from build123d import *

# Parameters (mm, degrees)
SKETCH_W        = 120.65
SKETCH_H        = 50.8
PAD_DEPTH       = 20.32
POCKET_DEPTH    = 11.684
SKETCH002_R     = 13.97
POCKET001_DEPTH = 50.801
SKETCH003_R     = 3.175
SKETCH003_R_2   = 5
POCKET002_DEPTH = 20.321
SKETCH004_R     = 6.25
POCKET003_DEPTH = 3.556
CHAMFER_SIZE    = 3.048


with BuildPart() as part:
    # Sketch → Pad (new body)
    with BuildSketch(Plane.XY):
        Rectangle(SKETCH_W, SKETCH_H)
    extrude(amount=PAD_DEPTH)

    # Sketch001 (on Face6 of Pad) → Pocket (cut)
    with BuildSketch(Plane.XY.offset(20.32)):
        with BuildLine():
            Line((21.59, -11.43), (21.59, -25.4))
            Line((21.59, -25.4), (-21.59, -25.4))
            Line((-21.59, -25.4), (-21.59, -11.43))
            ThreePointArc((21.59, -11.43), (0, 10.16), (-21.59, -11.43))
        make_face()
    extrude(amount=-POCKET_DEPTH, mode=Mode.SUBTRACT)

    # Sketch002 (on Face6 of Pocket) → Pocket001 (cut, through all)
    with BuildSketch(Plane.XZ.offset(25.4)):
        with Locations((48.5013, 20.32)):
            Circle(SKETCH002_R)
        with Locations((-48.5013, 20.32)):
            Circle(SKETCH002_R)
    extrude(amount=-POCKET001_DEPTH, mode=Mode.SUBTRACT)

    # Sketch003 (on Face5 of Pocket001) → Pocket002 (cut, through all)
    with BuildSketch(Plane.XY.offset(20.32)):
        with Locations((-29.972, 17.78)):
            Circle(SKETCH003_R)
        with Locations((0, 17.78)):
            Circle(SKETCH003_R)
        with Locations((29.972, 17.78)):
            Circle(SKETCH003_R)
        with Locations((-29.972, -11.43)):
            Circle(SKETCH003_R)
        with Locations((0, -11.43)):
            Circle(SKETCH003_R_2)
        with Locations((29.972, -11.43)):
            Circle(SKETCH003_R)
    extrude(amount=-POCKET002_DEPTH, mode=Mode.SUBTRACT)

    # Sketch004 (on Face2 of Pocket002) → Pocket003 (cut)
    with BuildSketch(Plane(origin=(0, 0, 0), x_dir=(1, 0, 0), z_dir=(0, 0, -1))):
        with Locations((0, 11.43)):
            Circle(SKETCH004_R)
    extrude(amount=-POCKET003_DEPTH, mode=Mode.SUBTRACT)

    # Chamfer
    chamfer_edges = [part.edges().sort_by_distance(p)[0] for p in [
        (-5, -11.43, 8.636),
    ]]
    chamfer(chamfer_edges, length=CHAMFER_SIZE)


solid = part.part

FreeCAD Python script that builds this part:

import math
import FreeCAD as App
import Part
import Sketcher
Q = App.Units.Quantity


def edges_at(feature, points):
    """Names of the edges that pass closest to the given points."""
    edges = feature.Shape.Edges
    near = lambda p: min(range(len(edges)), key=lambda i: edges[i].distToShape(Part.Vertex(*p))[0])
    return sorted({f"Edge{near(p) + 1}" for p in points})


def add_polygon(sketch, points):
    """Adds a closed chain of lines whose ends are joined by coincident constraints."""
    first, n = sketch.GeometryCount, len(points)
    for a, b in zip(points, points[1:] + points[:1]):
        sketch.addGeometry(Part.LineSegment(App.Vector(*a, 0), App.Vector(*b, 0)), False)
    for i in range(n):
        sketch.addConstraint(Sketcher.Constraint("Coincident", first + i, 2, first + (i + 1) % n, 1))

doc = App.newDocument("Part")
body = doc.addObject("PartDesign::Body", "Body")

sketch1 = body.newObject("Sketcher::SketchObject", "Sketch")
sketch1.AttachmentSupport = (doc.getObject("XY_Plane"), [""])
sketch1.MapMode = "FlatFace"
add_polygon(sketch1, [(-60, 25), (-60, -25), (60, -25), (60, 25)])
sketch1.addConstraint([
    Sketcher.Constraint("Vertical", 0),
    Sketcher.Constraint("Horizontal", 1),
    Sketcher.Constraint("Vertical", 2),
    Sketcher.Constraint("Horizontal", 3),
    Sketcher.Constraint("Symmetric", 0, 2, 2, 2, -1, 1),
    Sketcher.Constraint("DistanceY", 0, 2, 0, 1, Q("2 in")),
    Sketcher.Constraint("DistanceX", 1, 1, 1, 2, Q("4.75 in")),
])
pad1 = body.newObject("PartDesign::Pad", "Pad")
pad1.Profile = sketch1
pad1.Length = Q("0.8 in")

sketch2 = body.newObject("Sketcher::SketchObject", "Sketch001")
sketch2.AttachmentSupport = (doc.getObject("XY_Plane"), [""])
sketch2.MapMode = "FlatFace"
sketch2.AttachmentOffset = App.Placement(App.Vector(0, 0, 0.8 * 25.4), App.Rotation())
sketch2.addGeometry([
    Part.LineSegment(App.Vector(22, -25, 0), App.Vector(22, -11, 0)),
    Part.ArcOfCircle(Part.Circle(App.Vector(0, -11, 0), App.Vector(0, 0, 1), 22), math.radians(0), math.radians(180)),
    Part.LineSegment(App.Vector(-22, -11, 0), App.Vector(-22, -25, 0)),
    Part.LineSegment(App.Vector(-22, -25, 0), App.Vector(22, -25, 0)),
], False)
sketch2.addConstraint([
    Sketcher.Constraint("Tangent", 0, 2, 1, 1),
    Sketcher.Constraint("Tangent", 1, 2, 2, 1),
    Sketcher.Constraint("Coincident", 2, 2, 3, 1),
    Sketcher.Constraint("Coincident", 3, 2, 0, 1),
    Sketcher.Constraint("Vertical", 0),
    Sketcher.Constraint("Vertical", 2),
    Sketcher.Constraint("Horizontal", 3),
    Sketcher.Constraint("PointOnObject", 1, 3, -2),
    Sketcher.Constraint("Radius", 1, Q("0.85 in")),
    Sketcher.Constraint("DistanceY", 2, 2, -1, 1, Q("1 in")),
    Sketcher.Constraint("DistanceY", 0, 1, 0, 2, Q("0.55 in")),
])
pocket1 = body.newObject("PartDesign::Pocket", "Pocket")
pocket1.Profile = sketch2
pocket1.Length = Q("0.46 in")

sketch3 = body.newObject("Sketcher::SketchObject", "Sketch002")
sketch3.AttachmentSupport = (doc.getObject("XZ_Plane"), [""])
sketch3.MapMode = "FlatFace"
sketch3.AttachmentOffset = App.Placement(App.Vector(0, 0, 1 * 25.4), App.Rotation())
sketch3.addGeometry([
    Part.Circle(App.Vector(49, 20, 0), App.Vector(0, 0, 1), 14),
    Part.Circle(App.Vector(-49, 20, 0), App.Vector(0, 0, 1), 14),
], False)
sketch3.addConstraint([
    Sketcher.Constraint("Equal", 0, 1),
    Sketcher.Constraint("Symmetric", 0, 3, 1, 3, -2),
    Sketcher.Constraint("Diameter", 0, Q("1.1 in")),
    Sketcher.Constraint("DistanceY", -1, 1, 0, 3, Q("0.8 in")),
    Sketcher.Constraint("DistanceX", 1, 3, 0, 3, Q("3.819 in")),
])
pocket2 = body.newObject("PartDesign::Pocket", "Pocket001")
pocket2.Profile = sketch3
pocket2.Type = "ThroughAll"

sketch4 = body.newObject("Sketcher::SketchObject", "Sketch003")
sketch4.AttachmentSupport = (doc.getObject("XY_Plane"), [""])
sketch4.MapMode = "FlatFace"
sketch4.AttachmentOffset = App.Placement(App.Vector(0, 0, 0.8 * 25.4), App.Rotation())
sketch4.addGeometry([
    Part.Circle(App.Vector(-30, 17.8, 0), App.Vector(0, 0, 1), 3.2),
    Part.Circle(App.Vector(0, 17.8, 0), App.Vector(0, 0, 1), 3.2),
    Part.Circle(App.Vector(30, 17.8, 0), App.Vector(0, 0, 1), 3.2),
    Part.Circle(App.Vector(-30, -11.4, 0), App.Vector(0, 0, 1), 3.2),
    Part.Circle(App.Vector(0, -11.4, 0), App.Vector(0, 0, 1), 5),
    Part.Circle(App.Vector(30, -11.4, 0), App.Vector(0, 0, 1), 3.2),
], False)
sketch4.addConstraint([
    Sketcher.Constraint("Equal", 0, 1),
    Sketcher.Constraint("Equal", 1, 2),
    Sketcher.Constraint("Equal", 2, 3),
    Sketcher.Constraint("Equal", 3, 5),
    Sketcher.Constraint("Symmetric", 0, 3, 2, 3, -2),
    Sketcher.Constraint("Symmetric", 3, 3, 5, 3, -2),
    Sketcher.Constraint("PointOnObject", 1, 3, -2),
    Sketcher.Constraint("PointOnObject", 4, 3, -2),
    Sketcher.Constraint("Horizontal", 0, 3, 1, 3),
    Sketcher.Constraint("Horizontal", 3, 3, 4, 3),
    Sketcher.Constraint("Vertical", 0, 3, 3, 3),
    Sketcher.Constraint("Diameter", 0, Q("0.25 in")),
    Sketcher.Constraint("DistanceY", -1, 1, 0, 3, Q("0.7 in")),
    Sketcher.Constraint("Diameter", 4, 10.0),
    Sketcher.Constraint("DistanceX", 0, 3, -1, 1, Q("1.18 in")),
    Sketcher.Constraint("DistanceY", 3, 3, -1, 1, Q("0.45 in")),
])
pocket3 = body.newObject("PartDesign::Pocket", "Pocket002")
pocket3.Profile = sketch4
pocket3.Type = "ThroughAll"

sketch5 = body.newObject("Sketcher::SketchObject", "Sketch004")
sketch5.AttachmentSupport = (doc.getObject("XY_Plane"), [""])
sketch5.MapMode = "FlatFace"
sketch5.addGeometry(Part.Circle(App.Vector(0, -11, 0), App.Vector(0, 0, 1), 6), False)
sketch5.addConstraint([
    Sketcher.Constraint("PointOnObject", 0, 3, -2),
    Sketcher.Constraint("Diameter", 0, 12.5),
    Sketcher.Constraint("DistanceY", 0, 3, -1, 1, Q("0.45 in")),
])
pocket4 = body.newObject("PartDesign::Pocket", "Pocket003")
pocket4.Profile = sketch5
pocket4.Length = Q("0.14 in")
pocket4.Reversed = True
doc.recompute()

chamfer = body.newObject("PartDesign::Chamfer", "Chamfer")
chamfer.Base = (pocket4, edges_at(pocket4, [(-5, -11.43, 8.636)]))
chamfer.Size = Q("0.12 in")

doc.recompute()
